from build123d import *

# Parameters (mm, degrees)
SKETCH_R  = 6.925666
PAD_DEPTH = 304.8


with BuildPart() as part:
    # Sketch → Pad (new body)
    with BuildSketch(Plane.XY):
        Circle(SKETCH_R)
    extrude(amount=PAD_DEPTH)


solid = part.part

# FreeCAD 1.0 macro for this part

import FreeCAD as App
import Part
import Sketcher
Q = App.Units.Quantity

doc = App.newDocument("Part")
body = doc.addObject("PartDesign::Body", "Body")

# Sketch on XY plane
sketch1 = body.newObject("Sketcher::SketchObject", "Sketch")
sketch1.AttachmentSupport = (doc.getObject("XY_Plane"), [""])
sketch1.MapMode = "FlatFace"
sketch1.addGeometry(Part.Circle(App.Vector(0, 0, 0), App.Vector(0, 0, 1), 7), False)
sketch1.addConstraint([
    Sketcher.Constraint("Coincident", 0, 3, -1, 1),
    Sketcher.Constraint("Diameter", 0, Q("13.851332 mm")),
])
pad1 = body.newObject("PartDesign::Pad", "Pad")
pad1.Profile = sketch1
pad1.Length = Q("12 in")

doc.recompute()
